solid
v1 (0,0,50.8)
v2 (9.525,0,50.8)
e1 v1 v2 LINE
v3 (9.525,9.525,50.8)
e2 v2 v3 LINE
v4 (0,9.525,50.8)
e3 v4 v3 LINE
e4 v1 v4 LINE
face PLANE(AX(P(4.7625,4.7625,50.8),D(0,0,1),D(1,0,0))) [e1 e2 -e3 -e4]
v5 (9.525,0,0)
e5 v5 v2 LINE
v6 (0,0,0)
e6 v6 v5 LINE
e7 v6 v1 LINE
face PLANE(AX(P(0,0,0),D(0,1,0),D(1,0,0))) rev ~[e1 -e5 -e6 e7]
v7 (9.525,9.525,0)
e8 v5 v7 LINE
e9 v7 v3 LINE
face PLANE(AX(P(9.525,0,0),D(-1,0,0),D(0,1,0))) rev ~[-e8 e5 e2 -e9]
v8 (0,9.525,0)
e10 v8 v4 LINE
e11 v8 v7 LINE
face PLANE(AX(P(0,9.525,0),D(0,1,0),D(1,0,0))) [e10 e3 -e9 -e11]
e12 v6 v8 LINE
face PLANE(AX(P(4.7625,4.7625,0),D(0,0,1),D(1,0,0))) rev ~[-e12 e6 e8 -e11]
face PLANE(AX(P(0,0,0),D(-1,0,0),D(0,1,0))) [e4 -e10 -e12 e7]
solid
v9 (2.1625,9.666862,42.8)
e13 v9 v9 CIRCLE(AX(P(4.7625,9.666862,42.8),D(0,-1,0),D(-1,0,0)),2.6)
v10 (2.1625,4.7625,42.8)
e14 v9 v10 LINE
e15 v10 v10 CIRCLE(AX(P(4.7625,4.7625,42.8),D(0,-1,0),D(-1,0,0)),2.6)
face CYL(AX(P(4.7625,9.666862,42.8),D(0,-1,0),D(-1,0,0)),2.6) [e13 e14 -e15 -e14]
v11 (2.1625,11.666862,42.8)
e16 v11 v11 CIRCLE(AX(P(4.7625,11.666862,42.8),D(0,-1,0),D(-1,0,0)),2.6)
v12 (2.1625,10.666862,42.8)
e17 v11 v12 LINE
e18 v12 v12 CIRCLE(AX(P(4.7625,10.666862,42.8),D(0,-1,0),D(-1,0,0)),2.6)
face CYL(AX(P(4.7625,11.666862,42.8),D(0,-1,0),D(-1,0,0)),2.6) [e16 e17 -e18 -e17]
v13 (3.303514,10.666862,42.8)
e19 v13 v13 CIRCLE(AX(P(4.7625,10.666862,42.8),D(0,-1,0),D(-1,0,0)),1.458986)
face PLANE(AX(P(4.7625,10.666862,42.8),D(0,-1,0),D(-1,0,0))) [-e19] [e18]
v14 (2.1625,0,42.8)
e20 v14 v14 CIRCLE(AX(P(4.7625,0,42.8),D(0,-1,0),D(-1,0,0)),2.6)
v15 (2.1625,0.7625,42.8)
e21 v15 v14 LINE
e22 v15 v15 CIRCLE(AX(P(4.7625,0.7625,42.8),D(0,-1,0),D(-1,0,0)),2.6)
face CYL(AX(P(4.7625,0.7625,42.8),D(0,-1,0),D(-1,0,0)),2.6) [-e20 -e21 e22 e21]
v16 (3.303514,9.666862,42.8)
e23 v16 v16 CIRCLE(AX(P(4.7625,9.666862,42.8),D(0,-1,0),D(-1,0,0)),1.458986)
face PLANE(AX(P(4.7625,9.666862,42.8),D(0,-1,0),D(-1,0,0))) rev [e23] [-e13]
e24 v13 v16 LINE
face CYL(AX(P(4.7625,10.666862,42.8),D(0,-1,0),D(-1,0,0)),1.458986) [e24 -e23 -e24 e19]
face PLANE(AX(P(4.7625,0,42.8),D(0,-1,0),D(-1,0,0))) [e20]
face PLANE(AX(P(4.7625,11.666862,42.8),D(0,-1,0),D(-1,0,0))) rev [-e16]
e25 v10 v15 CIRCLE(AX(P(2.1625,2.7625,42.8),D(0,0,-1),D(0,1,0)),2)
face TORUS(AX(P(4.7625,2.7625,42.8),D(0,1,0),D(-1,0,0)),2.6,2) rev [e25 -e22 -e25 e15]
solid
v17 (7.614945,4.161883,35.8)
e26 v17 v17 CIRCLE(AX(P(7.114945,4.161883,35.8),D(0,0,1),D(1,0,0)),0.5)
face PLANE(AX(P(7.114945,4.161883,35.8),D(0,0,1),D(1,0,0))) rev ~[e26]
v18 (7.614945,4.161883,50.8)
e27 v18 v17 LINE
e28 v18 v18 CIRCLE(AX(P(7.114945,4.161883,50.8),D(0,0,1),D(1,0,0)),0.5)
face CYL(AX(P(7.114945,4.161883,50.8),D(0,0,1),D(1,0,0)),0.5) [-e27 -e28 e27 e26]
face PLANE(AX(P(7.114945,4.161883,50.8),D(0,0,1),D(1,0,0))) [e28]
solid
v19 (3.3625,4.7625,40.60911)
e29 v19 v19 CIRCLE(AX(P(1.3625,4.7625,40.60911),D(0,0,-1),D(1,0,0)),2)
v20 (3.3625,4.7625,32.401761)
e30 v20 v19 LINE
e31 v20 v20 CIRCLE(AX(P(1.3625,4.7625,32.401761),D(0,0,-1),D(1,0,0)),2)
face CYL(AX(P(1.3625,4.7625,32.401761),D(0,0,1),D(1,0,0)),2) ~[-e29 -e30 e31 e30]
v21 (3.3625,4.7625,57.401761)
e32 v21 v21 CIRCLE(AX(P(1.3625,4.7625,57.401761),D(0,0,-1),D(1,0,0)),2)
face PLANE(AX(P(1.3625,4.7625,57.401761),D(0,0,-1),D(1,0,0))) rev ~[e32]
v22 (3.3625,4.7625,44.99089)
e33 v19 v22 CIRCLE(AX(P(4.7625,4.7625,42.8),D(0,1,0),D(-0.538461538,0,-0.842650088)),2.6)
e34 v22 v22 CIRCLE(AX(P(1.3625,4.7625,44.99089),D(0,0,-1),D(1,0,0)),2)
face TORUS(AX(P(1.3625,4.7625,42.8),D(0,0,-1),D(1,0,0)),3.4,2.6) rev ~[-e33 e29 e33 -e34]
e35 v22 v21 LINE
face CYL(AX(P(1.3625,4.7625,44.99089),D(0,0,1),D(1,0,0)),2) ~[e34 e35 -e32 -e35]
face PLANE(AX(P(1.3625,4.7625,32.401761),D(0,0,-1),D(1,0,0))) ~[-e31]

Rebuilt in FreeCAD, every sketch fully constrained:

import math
import FreeCAD as App
import Part
import Sketcher
from FreeCAD import Vector
Q = App.Units.Quantity

doc = App.newDocument("Part")
params = doc.addObject("Spreadsheet::Sheet", "Params")
for row, (alias, value) in enumerate([
    ("pad1_length", "50.8 mm"),
    ("sketch2_radius", "2 mm"),
    ("sketch2_height", "1 mm"),
    ("sketch2_width", "2.6 mm"),
    ("revolution_angle", "360 deg"),
    ("sketch3_radius", "2.6 mm"),
    ("sketch3_width", "2 mm"),
    ("sketch3_height", "25 mm"),
    ("revolution2_angle", "360 deg"),
    ("sketch4_diameter", "1 mm"),
    ("pad2_length", "15 mm"),
], start=1):
    params.set(f"A{row}", alias)
    params.set(f"B{row}", "=" + value)
    params.setAlias(f"B{row}", alias)

body = doc.addObject("PartDesign::Body", "Body")

# Sketch on XY plane
sketch1 = doc.addObject("Sketcher::SketchObject", "Sketch")
body.addObject(sketch1)
sketch1.AttachmentSupport = (doc.XY_Plane, [""])
sketch1.MapMode = "FlatFace"
sketch1.addGeometry(Part.LineSegment(Vector(0, 10, 0), Vector(0, 0, 0)), False)
sketch1.addGeometry(Part.LineSegment(Vector(0, 0, 0), Vector(10, 0, 0)), False)
sketch1.addGeometry(Part.LineSegment(Vector(10, 0, 0), Vector(10, 10, 0)), False)
sketch1.addGeometry(Part.LineSegment(Vector(10, 10, 0), Vector(0, 10, 0)), False)
sketch1.addConstraint(Sketcher.Constraint("Coincident", 0, 2, 1, 1))
sketch1.addConstraint(Sketcher.Constraint("Coincident", 1, 2, 2, 1))
sketch1.addConstraint(Sketcher.Constraint("Coincident", 2, 2, 3, 1))
sketch1.addConstraint(Sketcher.Constraint("Coincident", 3, 2, 0, 1))
sketch1.addConstraint(Sketcher.Constraint("Vertical", 0))
sketch1.addConstraint(Sketcher.Constraint("Horizontal", 1))
sketch1.addConstraint(Sketcher.Constraint("Vertical", 2))
sketch1.addConstraint(Sketcher.Constraint("Horizontal", 3))
sketch1.addConstraint(Sketcher.Constraint("Coincident", 0, 2, -1, 1))
sketch1.addConstraint(Sketcher.Constraint("Equal", 3, 0))
sketch1.addConstraint(Sketcher.Constraint("DistanceX", 1, 1, 1, 2, Q("9.525 mm")))
pad1 = doc.addObject("PartDesign::Pad", "Pad")
body.addObject(pad1)
pad1.Profile = sketch1
pad1.setExpression("Length", "Params.pad1_length")
body2 = doc.addObject("PartDesign::Body", "Body001")

# Sketch on XY plane
sketch2 = doc.addObject("Sketcher::SketchObject", "Sketch001")
body2.addObject(sketch2)
sketch2.AttachmentSupport = (doc.getObject("XY_Plane001"), [""])
sketch2.MapMode = "FlatFace"
sketch2.AttachmentOffset = App.Placement(Vector(0, 0, 42.8), App.Rotation())
sketch2.addGeometry(Part.LineSegment(Vector(4.8, 11.7, 0), Vector(2.2, 11.7, 0)), False)
sketch2.addGeometry(Part.LineSegment(Vector(2.2, 11.7, 0), Vector(2.2, 10.7, 0)), False)
sketch2.addGeometry(Part.LineSegment(Vector(2.2, 10.7, 0), Vector(3.3, 10.7, 0)), False)
sketch2.addGeometry(Part.LineSegment(Vector(3.3, 10.7, 0), Vector(3.3, 9.7, 0)), False)
sketch2.addGeometry(Part.LineSegment(Vector(3.3, 9.7, 0), Vector(2.2, 9.7, 0)), False)
sketch2.addGeometry(Part.LineSegment(Vector(2.2, 9.7, 0), Vector(2.2, 4.8, 0)), False)
sketch2.addGeometry(Part.ArcOfCircle(Part.Circle(Vector(2.2, 2.8, 0), Vector(0, 0, 1), 2), math.radians(-90), math.radians(90)), False)
sketch2.addGeometry(Part.LineSegment(Vector(2.2, 0.8, 0), Vector(2.2, 0, 0)), False)
sketch2.addGeometry(Part.LineSegment(Vector(2.2, 0, 0), Vector(4.8, 0, 0)), False)
sketch2.addGeometry(Part.LineSegment(Vector(4.8, 0, 0), Vector(4.8, 11.7, 0)), False)
sketch2.addGeometry(Part.LineSegment(Vector(4.8, 11.7, 0), Vector(4.8, 0, 0)), True)  # axis
sketch2.addConstraint(Sketcher.Constraint("Coincident", 0, 2, 1, 1))
sketch2.addConstraint(Sketcher.Constraint("Coincident", 1, 2, 2, 1))
sketch2.addConstraint(Sketcher.Constraint("Coincident", 2, 2, 3, 1))
sketch2.addConstraint(Sketcher.Constraint("Coincident", 3, 2, 4, 1))
sketch2.addConstraint(Sketcher.Constraint("Coincident", 4, 2, 5, 1))
sketch2.addConstraint(Sketcher.Constraint("Coincident", 5, 2, 6, 2))
sketch2.addConstraint(Sketcher.Constraint("Coincident", 6, 1, 7, 1))
sketch2.addConstraint(Sketcher.Constraint("Coincident", 7, 2, 8, 1))
sketch2.addConstraint(Sketcher.Constraint("Coincident", 8, 2, 9, 1))
sketch2.addConstraint(Sketcher.Constraint("Coincident", 9, 2, 0, 1))
sketch2.addConstraint(Sketcher.Constraint("Horizontal", 0))
sketch2.addConstraint(Sketcher.Constraint("Vertical", 1))
sketch2.addConstraint(Sketcher.Constraint("Horizontal", 2))
sketch2.addConstraint(Sketcher.Constraint("Vertical", 3))
sketch2.addConstraint(Sketcher.Constraint("Horizontal", 4))
sketch2.addConstraint(Sketcher.Constraint("Vertical", 5))
sketch2.addConstraint(Sketcher.Constraint("Vertical", 7))
sketch2.addConstraint(Sketcher.Constraint("Horizontal", 8))
sketch2.addConstraint(Sketcher.Constraint("Vertical", 9))
sketch2.addConstraint(Sketcher.Constraint("Vertical", 10))
sketch2.addConstraint(Sketcher.Constraint("Coincident", 10, 1, 9, 2))
sketch2.addConstraint(Sketcher.Constraint("PointOnObject", 7, 2, -1))
sketch2.addConstraint(Sketcher.Constraint("PointOnObject", 10, 2, -1))
sketch2.addConstraint(Sketcher.Constraint("Vertical", 6, 3, 0, 2))
sketch2.addConstraint(Sketcher.Constraint("Vertical", 1, 2, 4, 2))
sketch2.addConstraint(Sketcher.Constraint("Vertical", 5, 2, 6, 1))
sketch2.addConstraint(Sketcher.Constraint("Equal", 1, 3))
sketch2.addConstraint(Sketcher.Constraint("Radius", 6, Q("2 mm")))
sketch2.addConstraint(Sketcher.Constraint("DistanceY", 1, 2, 1, 1, Q("1 mm")))
sketch2.addConstraint(Sketcher.Constraint("DistanceX", 0, 2, 0, 1, Q("2.6 mm")))
sketch2.addConstraint(Sketcher.Constraint("DistanceY", 7, 2, 7, 1, Q("0.7625 mm")))
sketch2.addConstraint(Sketcher.Constraint("DistanceY", 5, 2, 5, 1, Q("4.904362 mm")))
sketch2.addConstraint(Sketcher.Constraint("DistanceX", -1, 1, 6, 3, Q("2.1625 mm")))
sketch2.addConstraint(Sketcher.Constraint("DistanceX", 2, 1, 2, 2, Q("1.141014 mm")))
sketch2.setExpression("Constraints[27]", "Params.sketch2_radius")
sketch2.setExpression("Constraints[28]", "Params.sketch2_height")
sketch2.setExpression("Constraints[29]", "Params.sketch2_width")
revolution = doc.addObject("PartDesign::Revolution", "Revolution")
body2.addObject(revolution)
revolution.Profile = sketch2
revolution.ReferenceAxis = (sketch2, ["Axis0"])
revolution.setExpression("Angle", "Params.revolution_angle")
body3 = doc.addObject("PartDesign::Body", "Body002")

# Sketch on XZ plane
sketch3 = doc.addObject("Sketcher::SketchObject", "Sketch002")
body3.addObject(sketch3)
sketch3.AttachmentSupport = (doc.getObject("XZ_Plane002"), [""])
sketch3.MapMode = "FlatFace"
sketch3.AttachmentOffset = App.Placement(Vector(0, 0, -4.7625), App.Rotation())
sketch3.addGeometry(Part.LineSegment(Vector(3.4, 57.4, 0), Vector(1.4, 57.4, 0)), False)
sketch3.addGeometry(Part.LineSegment(Vector(1.4, 57.4, 0), Vector(1.4, 32.4, 0)), False)
sketch3.addGeometry(Part.LineSegment(Vector(1.4, 32.4, 0), Vector(3.4, 32.4, 0)), False)
sketch3.addGeometry(Part.LineSegment(Vector(3.4, 32.4, 0), Vector(3.4, 40.6, 0)), False)
sketch3.addGeometry(Part.ArcOfCircle(Part.Circle(Vector(4.8, 42.8, 0), Vector(0, 0, 1), 2.6), math.radians(123), math.radians(237)), False)
sketch3.addGeometry(Part.LineSegment(Vector(3.4, 45, 0), Vector(3.4, 57.4, 0)), False)
sketch3.addGeometry(Part.LineSegment(Vector(1.4, 57.4, 0), Vector(1.4, 32.4, 0)), True)  # axis
sketch3.addConstraint(Sketcher.Constraint("Coincident", 0, 2, 1, 1))
sketch3.addConstraint(Sketcher.Constraint("Coincident", 1, 2, 2, 1))
sketch3.addConstraint(Sketcher.Constraint("Coincident", 2, 2, 3, 1))
sketch3.addConstraint(Sketcher.Constraint("Coincident", 3, 2, 4, 2))
sketch3.addConstraint(Sketcher.Constraint("Coincident", 4, 1, 5, 1))
sketch3.addConstraint(Sketcher.Constraint("Coincident", 5, 2, 0, 1))
sketch3.addConstraint(Sketcher.Constraint("Horizontal", 0))
sketch3.addConstraint(Sketcher.Constraint("Vertical", 1))
sketch3.addConstraint(Sketcher.Constraint("Horizontal", 2))
sketch3.addConstraint(Sketcher.Constraint("Vertical", 3))
sketch3.addConstraint(Sketcher.Constraint("Vertical", 5))
sketch3.addConstraint(Sketcher.Constraint("Vertical", 6))
sketch3.addConstraint(Sketcher.Constraint("Coincident", 6, 1, 0, 2))
sketch3.addConstraint(Sketcher.Constraint("Horizontal", 2, 2, 6, 2))
sketch3.addConstraint(Sketcher.Constraint("Vertical", 3, 2, 4, 1))
sketch3.addConstraint(Sketcher.Constraint("Radius", 4, Q("2.6 mm")))
sketch3.addConstraint(Sketcher.Constraint("DistanceX", 0, 2, 0, 1, Q("2 mm")))
sketch3.addConstraint(Sketcher.Constraint("DistanceY", 1, 2, 1, 1, Q("25 mm")))
sketch3.addConstraint(Sketcher.Constraint("DistanceY", -1, 1, 4, 3, Q("42.8 mm")))
sketch3.addConstraint(Sketcher.Constraint("DistanceX", 0, 2, 4, 3, Q("3.4 mm")))
sketch3.addConstraint(Sketcher.Constraint("DistanceY", 3, 1, 3, 2, Q("8.207349 mm")))
sketch3.addConstraint(Sketcher.Constraint("DistanceX", -1, 1, 4, 3, Q("4.7625 mm")))
sketch3.setExpression("Constraints[15]", "Params.sketch3_radius")
sketch3.setExpression("Constraints[16]", "Params.sketch3_width")
sketch3.setExpression("Constraints[17]", "Params.sketch3_height")
revolution2 = doc.addObject("PartDesign::Revolution", "Revolution001")
body3.addObject(revolution2)
revolution2.Profile = sketch3
revolution2.ReferenceAxis = (sketch3, ["Axis0"])
revolution2.setExpression("Angle", "Params.revolution2_angle")
body4 = doc.addObject("PartDesign::Body", "Body003")

# Sketch on XY plane
sketch4 = doc.addObject("Sketcher::SketchObject", "Sketch003")
body4.addObject(sketch4)
sketch4.AttachmentSupport = (doc.getObject("XY_Plane003"), [""])
sketch4.MapMode = "FlatFace"
sketch4.AttachmentOffset = App.Placement(Vector(0, 0, 50.8), App.Rotation())
sketch4.addGeometry(Part.Circle(Vector(7.1, 4.2, 0), Vector(0, 0, 1), 0.5), False)
sketch4.addConstraint(Sketcher.Constraint("Diameter", 0, Q("1 mm")))
sketch4.addConstraint(Sketcher.Constraint("DistanceX", -1, 1, 0, 3, Q("7.114945 mm")))
sketch4.addConstraint(Sketcher.Constraint("DistanceY", -1, 1, 0, 3, Q("4.161883 mm")))
sketch4.setExpression("Constraints[0]", "Params.sketch4_diameter")
pad2 = doc.addObject("PartDesign::Pad", "Pad001")
body4.addObject(pad2)
pad2.Profile = sketch4
pad2.setExpression("Length", "Params.pad2_length")
pad2.Reversed = True

doc.recompute()
